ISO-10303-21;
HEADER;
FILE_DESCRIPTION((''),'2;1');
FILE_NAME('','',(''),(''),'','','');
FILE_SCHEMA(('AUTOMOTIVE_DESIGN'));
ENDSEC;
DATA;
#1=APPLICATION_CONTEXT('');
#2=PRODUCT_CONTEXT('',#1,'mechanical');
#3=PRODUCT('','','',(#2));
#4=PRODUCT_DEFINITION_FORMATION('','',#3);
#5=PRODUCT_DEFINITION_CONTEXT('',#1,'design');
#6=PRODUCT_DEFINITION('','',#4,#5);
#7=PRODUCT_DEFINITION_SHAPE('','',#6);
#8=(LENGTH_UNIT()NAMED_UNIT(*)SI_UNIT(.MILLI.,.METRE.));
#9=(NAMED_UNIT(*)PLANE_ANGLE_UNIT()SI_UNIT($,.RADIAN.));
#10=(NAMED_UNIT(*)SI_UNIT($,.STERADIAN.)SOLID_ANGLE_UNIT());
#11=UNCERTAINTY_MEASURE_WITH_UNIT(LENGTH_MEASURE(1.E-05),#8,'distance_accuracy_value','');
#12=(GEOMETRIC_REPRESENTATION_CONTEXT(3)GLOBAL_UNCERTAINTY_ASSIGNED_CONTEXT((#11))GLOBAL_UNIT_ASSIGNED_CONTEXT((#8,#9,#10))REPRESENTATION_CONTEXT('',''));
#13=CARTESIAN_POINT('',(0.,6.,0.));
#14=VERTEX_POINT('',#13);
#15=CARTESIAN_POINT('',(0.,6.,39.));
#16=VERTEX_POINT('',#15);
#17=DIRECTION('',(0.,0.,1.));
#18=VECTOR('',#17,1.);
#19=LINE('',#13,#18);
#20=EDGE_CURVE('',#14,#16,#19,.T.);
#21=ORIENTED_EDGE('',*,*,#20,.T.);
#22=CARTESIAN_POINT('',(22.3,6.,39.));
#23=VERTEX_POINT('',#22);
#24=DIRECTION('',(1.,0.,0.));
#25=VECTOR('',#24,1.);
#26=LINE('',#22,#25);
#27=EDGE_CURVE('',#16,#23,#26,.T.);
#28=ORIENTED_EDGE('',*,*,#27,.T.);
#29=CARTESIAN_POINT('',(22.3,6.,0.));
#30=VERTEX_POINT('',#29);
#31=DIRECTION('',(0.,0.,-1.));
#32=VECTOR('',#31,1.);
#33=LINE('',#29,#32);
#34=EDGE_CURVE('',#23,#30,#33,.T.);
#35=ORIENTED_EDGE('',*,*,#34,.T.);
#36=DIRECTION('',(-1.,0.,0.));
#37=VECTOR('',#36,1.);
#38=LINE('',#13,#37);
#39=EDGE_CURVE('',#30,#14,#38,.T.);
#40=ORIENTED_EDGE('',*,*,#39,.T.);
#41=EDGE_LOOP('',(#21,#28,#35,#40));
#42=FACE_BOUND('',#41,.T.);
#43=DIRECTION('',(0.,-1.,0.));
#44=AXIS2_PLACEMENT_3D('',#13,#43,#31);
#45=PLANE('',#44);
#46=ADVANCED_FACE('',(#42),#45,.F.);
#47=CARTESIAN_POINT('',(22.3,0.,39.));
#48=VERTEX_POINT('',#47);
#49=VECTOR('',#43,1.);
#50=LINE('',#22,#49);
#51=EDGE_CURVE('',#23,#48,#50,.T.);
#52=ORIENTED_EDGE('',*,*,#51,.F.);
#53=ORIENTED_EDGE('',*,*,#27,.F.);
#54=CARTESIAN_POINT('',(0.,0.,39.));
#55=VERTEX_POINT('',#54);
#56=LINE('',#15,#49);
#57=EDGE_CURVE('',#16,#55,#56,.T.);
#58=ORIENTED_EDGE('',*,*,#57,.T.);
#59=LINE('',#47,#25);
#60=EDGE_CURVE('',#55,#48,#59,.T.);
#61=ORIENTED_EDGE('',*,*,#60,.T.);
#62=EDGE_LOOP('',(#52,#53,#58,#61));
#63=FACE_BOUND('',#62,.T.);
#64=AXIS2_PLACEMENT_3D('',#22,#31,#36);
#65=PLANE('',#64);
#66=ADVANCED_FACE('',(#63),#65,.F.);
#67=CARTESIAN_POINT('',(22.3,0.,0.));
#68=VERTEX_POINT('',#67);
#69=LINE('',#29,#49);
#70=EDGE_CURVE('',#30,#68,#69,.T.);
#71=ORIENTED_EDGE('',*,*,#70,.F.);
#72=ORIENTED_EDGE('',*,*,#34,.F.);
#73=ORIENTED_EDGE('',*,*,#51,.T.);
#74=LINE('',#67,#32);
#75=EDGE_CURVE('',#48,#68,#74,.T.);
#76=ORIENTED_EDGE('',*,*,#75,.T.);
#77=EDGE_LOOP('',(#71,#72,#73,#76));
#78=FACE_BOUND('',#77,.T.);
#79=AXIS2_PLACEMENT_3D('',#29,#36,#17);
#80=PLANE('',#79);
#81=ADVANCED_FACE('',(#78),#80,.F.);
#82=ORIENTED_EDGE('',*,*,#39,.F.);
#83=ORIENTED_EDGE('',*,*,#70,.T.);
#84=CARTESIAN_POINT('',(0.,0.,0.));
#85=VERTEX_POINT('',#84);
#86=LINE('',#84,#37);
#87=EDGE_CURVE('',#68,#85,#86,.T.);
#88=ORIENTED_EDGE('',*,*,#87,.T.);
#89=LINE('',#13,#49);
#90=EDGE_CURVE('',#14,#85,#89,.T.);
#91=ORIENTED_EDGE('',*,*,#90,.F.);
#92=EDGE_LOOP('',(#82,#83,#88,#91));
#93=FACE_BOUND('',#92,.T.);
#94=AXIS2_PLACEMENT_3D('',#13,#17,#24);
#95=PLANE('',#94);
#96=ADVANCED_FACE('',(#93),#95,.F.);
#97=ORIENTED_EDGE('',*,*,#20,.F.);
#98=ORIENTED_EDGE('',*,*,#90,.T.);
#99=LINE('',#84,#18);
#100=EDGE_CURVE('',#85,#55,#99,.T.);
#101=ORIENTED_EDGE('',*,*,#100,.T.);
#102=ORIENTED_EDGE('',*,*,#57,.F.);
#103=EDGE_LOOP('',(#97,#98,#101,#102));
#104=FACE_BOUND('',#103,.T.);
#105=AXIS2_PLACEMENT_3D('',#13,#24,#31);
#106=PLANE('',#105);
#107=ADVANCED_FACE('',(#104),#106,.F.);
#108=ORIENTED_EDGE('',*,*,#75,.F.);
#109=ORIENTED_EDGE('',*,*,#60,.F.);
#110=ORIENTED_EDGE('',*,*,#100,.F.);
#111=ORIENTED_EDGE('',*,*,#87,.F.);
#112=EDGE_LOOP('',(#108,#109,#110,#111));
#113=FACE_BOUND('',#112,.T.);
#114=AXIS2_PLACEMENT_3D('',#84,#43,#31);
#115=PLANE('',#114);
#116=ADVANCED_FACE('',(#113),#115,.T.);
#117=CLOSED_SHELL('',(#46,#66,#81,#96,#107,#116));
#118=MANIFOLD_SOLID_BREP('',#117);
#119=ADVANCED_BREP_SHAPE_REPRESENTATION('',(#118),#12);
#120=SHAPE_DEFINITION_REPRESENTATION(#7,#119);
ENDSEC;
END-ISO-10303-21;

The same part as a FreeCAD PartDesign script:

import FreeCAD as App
import Part
import Sketcher
from FreeCAD import Vector
Q = App.Units.Quantity


def add_polygon(sketch, points):
    """Adds a closed chain of lines whose ends are joined by coincident constraints."""
    first, n = sketch.GeometryCount, len(points)
    for a, b in zip(points, points[1:] + points[:1]):
        sketch.addGeometry(Part.LineSegment(App.Vector(*a, 0), App.Vector(*b, 0)), False)
    for i in range(n):
        sketch.addConstraint(Sketcher.Constraint("Coincident", first + i, 2, first + (i + 1) % n, 1))

doc = App.newDocument("Part")
body = doc.addObject("PartDesign::Body", "Body")

sketch1 = body.newObject("Sketcher::SketchObject", "Sketch")
sketch1.AttachmentSupport = (doc.getObject("XZ_Plane"), [""])
sketch1.MapMode = "FlatFace"
add_polygon(sketch1, [(0, 0), (0, 39), (22, 39), (22, 0)])
sketch1.addConstraint(Sketcher.Constraint("Vertical", 0))
sketch1.addConstraint(Sketcher.Constraint("Horizontal", 1))
sketch1.addConstraint(Sketcher.Constraint("Vertical", 2))
sketch1.addConstraint(Sketcher.Constraint("Horizontal", 3))
sketch1.addConstraint(Sketcher.Constraint("Coincident", 3, 2, -1, 1))
sketch1.addConstraint(Sketcher.Constraint("DistanceY", 0, 1, 0, 2, Q("39 mm")))
sketch1.addConstraint(Sketcher.Constraint("DistanceX", 1, 1, 1, 2, Q("22.3 mm")))
pad1 = body.newObject("PartDesign::Pad", "Pad")
pad1.Profile = sketch1
pad1.Length = 6
pad1.Reversed = True

doc.recompute()
